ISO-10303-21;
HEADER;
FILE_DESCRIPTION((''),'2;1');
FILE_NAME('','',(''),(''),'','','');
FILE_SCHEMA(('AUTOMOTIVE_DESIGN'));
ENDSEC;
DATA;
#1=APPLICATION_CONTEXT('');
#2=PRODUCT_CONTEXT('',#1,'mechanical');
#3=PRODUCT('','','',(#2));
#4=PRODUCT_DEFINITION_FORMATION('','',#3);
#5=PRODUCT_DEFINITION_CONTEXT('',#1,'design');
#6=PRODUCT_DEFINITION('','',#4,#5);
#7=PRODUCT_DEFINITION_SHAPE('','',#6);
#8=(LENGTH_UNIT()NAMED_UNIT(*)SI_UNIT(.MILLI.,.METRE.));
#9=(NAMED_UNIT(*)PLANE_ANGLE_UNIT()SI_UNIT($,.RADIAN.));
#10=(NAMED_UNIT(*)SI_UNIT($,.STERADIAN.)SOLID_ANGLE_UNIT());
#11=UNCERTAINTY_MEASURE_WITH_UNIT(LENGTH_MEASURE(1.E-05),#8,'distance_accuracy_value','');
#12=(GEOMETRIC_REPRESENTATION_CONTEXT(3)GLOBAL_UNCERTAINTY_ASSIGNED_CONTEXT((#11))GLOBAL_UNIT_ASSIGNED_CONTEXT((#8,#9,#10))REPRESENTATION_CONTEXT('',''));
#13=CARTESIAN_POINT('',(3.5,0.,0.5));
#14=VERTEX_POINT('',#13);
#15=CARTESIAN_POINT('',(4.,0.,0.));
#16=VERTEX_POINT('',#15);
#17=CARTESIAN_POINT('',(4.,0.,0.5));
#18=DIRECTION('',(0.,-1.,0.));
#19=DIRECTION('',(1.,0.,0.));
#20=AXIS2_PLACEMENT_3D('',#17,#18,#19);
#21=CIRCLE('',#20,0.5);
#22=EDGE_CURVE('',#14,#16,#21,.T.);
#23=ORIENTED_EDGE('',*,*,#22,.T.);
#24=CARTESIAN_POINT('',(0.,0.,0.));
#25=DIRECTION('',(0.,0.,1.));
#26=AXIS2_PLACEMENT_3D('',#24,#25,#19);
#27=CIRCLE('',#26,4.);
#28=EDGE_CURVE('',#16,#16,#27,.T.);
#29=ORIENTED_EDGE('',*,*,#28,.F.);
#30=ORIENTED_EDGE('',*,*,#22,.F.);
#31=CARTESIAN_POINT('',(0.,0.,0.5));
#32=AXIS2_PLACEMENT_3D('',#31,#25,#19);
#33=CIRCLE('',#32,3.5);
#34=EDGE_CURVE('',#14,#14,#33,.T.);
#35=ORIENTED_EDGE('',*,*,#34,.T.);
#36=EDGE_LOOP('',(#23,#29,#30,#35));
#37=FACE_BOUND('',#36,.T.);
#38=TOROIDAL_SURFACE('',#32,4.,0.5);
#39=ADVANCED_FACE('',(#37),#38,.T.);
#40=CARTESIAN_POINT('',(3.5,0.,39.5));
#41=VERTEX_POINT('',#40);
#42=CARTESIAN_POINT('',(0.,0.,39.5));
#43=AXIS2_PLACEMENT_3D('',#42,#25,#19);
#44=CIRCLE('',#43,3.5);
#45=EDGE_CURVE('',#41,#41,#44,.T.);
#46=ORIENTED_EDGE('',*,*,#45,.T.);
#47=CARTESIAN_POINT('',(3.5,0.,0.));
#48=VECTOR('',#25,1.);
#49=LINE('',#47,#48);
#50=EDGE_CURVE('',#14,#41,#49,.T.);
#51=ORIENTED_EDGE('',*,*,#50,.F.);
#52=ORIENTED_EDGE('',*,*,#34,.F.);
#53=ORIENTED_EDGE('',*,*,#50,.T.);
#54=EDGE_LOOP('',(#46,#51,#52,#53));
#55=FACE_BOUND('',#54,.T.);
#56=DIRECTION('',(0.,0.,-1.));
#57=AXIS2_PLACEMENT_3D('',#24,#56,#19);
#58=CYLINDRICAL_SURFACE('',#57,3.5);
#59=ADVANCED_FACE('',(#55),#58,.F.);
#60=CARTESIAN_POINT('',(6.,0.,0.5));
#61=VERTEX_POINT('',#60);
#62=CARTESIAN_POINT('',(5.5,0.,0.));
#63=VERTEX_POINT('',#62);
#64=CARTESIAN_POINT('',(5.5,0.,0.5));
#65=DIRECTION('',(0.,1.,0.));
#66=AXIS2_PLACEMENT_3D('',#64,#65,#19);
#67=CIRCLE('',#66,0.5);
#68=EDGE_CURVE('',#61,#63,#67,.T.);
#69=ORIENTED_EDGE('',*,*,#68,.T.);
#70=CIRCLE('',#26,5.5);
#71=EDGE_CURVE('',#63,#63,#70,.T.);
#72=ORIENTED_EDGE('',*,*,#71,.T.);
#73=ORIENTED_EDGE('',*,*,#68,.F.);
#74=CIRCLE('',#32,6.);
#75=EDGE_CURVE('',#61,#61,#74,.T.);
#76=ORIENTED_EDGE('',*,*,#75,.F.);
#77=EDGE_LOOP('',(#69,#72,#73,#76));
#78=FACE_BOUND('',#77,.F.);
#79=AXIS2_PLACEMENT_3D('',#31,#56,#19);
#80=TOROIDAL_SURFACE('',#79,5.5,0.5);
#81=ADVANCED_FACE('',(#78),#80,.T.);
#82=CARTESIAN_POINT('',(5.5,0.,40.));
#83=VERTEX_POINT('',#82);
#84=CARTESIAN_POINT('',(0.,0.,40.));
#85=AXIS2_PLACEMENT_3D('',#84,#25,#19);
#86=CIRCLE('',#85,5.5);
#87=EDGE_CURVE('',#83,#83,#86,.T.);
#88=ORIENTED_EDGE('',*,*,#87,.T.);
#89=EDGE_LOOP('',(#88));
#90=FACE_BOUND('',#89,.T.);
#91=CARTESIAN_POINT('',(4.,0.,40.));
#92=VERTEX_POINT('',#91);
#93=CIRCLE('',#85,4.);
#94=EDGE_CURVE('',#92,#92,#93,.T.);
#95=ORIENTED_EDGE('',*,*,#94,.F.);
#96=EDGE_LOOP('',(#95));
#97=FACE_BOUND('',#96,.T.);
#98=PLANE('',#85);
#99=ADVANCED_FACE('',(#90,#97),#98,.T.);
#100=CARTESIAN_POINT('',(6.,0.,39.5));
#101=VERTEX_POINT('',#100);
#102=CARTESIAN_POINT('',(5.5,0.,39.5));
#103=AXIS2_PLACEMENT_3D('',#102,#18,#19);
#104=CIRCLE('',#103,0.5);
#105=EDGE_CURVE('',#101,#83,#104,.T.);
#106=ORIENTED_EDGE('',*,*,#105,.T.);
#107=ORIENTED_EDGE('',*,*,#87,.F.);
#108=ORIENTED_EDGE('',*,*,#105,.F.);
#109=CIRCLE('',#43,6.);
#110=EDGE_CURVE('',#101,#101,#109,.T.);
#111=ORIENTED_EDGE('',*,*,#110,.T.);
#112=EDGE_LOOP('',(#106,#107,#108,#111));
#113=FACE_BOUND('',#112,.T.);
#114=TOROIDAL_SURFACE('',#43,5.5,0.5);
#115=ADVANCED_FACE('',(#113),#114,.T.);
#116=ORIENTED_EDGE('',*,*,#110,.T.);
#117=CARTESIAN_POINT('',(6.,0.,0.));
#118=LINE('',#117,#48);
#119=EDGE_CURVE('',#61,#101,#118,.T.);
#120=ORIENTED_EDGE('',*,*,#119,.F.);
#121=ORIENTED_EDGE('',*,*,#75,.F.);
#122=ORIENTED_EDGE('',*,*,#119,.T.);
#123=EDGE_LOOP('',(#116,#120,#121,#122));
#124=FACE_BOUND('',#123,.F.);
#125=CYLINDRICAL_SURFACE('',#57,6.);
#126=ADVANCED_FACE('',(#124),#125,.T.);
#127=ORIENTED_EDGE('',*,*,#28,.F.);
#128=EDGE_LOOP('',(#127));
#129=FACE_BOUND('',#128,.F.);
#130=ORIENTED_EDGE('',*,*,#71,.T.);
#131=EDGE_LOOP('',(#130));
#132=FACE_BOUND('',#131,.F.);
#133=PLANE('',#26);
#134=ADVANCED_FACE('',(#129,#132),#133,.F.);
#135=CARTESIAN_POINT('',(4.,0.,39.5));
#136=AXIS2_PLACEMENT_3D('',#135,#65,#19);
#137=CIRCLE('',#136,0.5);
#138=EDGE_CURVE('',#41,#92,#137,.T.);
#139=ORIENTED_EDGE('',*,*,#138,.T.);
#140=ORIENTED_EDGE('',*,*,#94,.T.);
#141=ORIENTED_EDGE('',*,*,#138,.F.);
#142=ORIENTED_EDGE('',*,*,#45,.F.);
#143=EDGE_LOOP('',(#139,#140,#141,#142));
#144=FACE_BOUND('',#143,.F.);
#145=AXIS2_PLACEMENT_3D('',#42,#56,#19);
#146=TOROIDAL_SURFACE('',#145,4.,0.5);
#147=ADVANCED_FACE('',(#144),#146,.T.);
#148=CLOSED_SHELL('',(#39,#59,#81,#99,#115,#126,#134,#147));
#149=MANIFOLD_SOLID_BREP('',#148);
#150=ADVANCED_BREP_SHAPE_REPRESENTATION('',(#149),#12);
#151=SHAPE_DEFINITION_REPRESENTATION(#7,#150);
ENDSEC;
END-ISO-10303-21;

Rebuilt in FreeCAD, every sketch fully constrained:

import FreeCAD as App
import Part
import Sketcher
from FreeCAD import Vector


def edges_at(feature, points):
    """Names of the edges that pass closest to the given points."""
    edges = feature.Shape.Edges
    near = lambda p: min(range(len(edges)), key=lambda i: edges[i].distToShape(Part.Vertex(*p))[0])
    return sorted({f"Edge{near(p) + 1}" for p in points})

doc = App.newDocument("Part")
params = doc.addObject("Spreadsheet::Sheet", "Params")
for row, (alias, value) in enumerate([
    ("sketch1_diameter", "12 mm"),
    ("sketch1_diameter2", "7 mm"),
    ("pad1_length", "40 mm"),
    ("fillet_radius", "0.5 mm"),
], start=1):
    params.set(f"A{row}", alias)
    params.set(f"B{row}", "=" + value)
    params.setAlias(f"B{row}", alias)

body = doc.addObject("PartDesign::Body", "Body")

# Sketch on XY plane
sketch1 = body.newObject("Sketcher::SketchObject", "Sketch")
sketch1.AttachmentSupport = (doc.getObject("XY_Plane"), [""])
sketch1.MapMode = "FlatFace"
sketch1.addGeometry([
    Part.Circle(Vector(0, 0, 0), Vector(0, 0, 1), 6),
    Part.Circle(Vector(0, 0, 0), Vector(0, 0, 1), 3.5),
], False)
sketch1.addConstraint([
    Sketcher.Constraint("Coincident", 0, 3, -1, 1),
    Sketcher.Constraint("Coincident", 1, 3, -1, 1),
    Sketcher.Constraint("Diameter", 0, 12.0),
    Sketcher.Constraint("Diameter", 1, 7.0),
])
sketch1.setExpression("Constraints[2]", "Params.sketch1_diameter")
sketch1.setExpression("Constraints[3]", "Params.sketch1_diameter2")
pad1 = body.newObject("PartDesign::Pad", "Pad")
pad1.Profile = sketch1
pad1.setExpression("Length", "Params.pad1_length")
doc.recompute()

fillet = body.newObject("PartDesign::Fillet", "Fillet")
fillet.Base = (pad1, edges_at(pad1, [
    (-6, 0, 0),
    (-6, 0, 40),
    (-3.5, 0, 0),
    (-3.5, 0, 40),
]))
fillet.setExpression("Radius", "Params.fillet_radius")

doc.recompute()
